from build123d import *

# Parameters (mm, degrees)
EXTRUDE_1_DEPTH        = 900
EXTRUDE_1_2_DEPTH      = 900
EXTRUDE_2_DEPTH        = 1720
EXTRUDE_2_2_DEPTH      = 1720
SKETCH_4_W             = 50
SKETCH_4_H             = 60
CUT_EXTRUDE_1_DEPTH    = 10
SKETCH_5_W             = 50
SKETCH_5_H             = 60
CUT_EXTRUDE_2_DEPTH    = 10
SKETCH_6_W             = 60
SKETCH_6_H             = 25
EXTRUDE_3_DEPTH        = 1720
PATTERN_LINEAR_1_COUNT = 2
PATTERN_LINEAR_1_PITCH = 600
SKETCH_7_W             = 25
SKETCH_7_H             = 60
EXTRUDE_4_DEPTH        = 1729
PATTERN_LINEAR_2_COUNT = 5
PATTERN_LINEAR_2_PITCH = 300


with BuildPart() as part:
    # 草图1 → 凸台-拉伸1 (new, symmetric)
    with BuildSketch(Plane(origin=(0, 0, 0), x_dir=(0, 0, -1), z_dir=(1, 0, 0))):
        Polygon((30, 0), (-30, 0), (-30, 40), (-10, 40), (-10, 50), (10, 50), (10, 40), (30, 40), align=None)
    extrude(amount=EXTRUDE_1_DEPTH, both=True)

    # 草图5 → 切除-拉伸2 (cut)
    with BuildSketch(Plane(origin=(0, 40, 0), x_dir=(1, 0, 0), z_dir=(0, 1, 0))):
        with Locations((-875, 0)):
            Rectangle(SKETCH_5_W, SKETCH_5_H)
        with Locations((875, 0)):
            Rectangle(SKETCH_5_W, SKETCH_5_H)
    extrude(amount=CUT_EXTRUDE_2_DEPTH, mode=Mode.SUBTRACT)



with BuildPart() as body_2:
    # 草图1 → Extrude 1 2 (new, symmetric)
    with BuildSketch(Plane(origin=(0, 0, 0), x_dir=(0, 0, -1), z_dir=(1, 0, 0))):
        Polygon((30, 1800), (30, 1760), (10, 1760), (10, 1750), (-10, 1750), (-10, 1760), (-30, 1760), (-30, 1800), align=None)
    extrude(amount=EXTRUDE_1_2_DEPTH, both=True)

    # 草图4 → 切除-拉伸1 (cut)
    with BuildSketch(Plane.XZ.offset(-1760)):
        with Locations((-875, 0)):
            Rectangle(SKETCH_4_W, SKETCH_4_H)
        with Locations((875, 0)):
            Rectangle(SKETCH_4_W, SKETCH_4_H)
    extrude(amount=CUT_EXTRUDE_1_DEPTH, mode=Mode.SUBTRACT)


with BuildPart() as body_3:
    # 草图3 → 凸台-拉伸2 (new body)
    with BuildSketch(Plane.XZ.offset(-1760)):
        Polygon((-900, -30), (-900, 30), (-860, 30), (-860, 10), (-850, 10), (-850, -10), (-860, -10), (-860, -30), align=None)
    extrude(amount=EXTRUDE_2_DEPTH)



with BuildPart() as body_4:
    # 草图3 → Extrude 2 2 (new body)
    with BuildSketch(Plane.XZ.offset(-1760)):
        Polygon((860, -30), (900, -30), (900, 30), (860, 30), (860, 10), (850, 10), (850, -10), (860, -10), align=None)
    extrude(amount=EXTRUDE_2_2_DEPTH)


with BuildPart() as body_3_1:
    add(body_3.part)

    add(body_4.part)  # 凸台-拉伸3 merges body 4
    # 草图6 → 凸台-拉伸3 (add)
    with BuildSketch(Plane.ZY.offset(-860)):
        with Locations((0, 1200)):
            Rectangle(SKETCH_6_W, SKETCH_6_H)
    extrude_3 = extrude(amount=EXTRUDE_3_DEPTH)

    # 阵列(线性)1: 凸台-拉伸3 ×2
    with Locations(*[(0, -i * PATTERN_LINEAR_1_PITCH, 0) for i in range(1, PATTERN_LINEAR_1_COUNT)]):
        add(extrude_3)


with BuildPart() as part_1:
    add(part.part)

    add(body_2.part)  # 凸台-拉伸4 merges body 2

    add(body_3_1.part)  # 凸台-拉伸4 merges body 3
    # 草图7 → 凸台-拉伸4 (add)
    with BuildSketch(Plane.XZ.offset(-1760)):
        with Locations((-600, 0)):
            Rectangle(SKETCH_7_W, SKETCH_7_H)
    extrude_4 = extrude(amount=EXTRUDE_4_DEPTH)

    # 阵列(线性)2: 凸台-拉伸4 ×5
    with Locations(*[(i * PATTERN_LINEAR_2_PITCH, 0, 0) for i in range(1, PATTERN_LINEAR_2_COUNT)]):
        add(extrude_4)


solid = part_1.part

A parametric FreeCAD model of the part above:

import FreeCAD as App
import Part
import Sketcher


def add_polygon(sketch, points):
    """Adds a closed chain of lines whose ends are joined by coincident constraints."""
    first, n = sketch.GeometryCount, len(points)
    for a, b in zip(points, points[1:] + points[:1]):
        sketch.addGeometry(Part.LineSegment(App.Vector(*a, 0), App.Vector(*b, 0)), False)
    for i in range(n):
        sketch.addConstraint(Sketcher.Constraint("Coincident", first + i, 2, first + (i + 1) % n, 1))

doc = App.newDocument("Part")
params = doc.addObject("Spreadsheet::Sheet", "Params")
for row, (alias, value) in enumerate([
    ("sketch1_width", "40 mm"),
    ("sketch1_width2", "10 mm"),
    ("sketch1_height", "60 mm"),
    ("pad1_length", "1800 mm"),
    ("sketch2_width", "50 mm"),
    ("sketch2_height", "60 mm"),
    ("pocket1_length", "10 mm"),
    ("sketch3_width", "40 mm"),
    ("sketch3_width2", "10 mm"),
    ("sketch3_height", "60 mm"),
    ("pad2_length", "1800 mm"),
    ("sketch4_width", "50 mm"),
    ("sketch4_height", "60 mm"),
    ("pocket2_length", "10 mm"),
    ("sketch5_width", "40 mm"),
    ("sketch5_width2", "10 mm"),
    ("sketch5_height", "60 mm"),
    ("pad3_length", "1720 mm"),
    ("sketch6_width", "40 mm"),
    ("sketch6_width2", "10 mm"),
    ("sketch6_height", "60 mm"),
    ("pad4_length", "1720 mm"),
    ("sketch7_width", "25 mm"),
    ("sketch7_height", "60 mm"),
    ("pad5_length", "1720 mm"),
    ("linearpattern_pitch", "600 mm"),
    ("sketch8_width", "25 mm"),
    ("sketch8_height", "60 mm"),
    ("pad6_length", "1729 mm"),
    ("linearpattern2_pitch", "300 mm"),
], start=1):
    params.set(f"A{row}", alias)
    params.set(f"B{row}", "=" + value)
    params.setAlias(f"B{row}", alias)

body = doc.addObject("PartDesign::Body", "Body")

sketch1 = body.newObject("Sketcher::SketchObject", "Sketch")
sketch1.AttachmentSupport = (doc.getObject("YZ_Plane"), [""])
sketch1.MapMode = "FlatFace"
add_polygon(sketch1, [(0, 30), (0, -30), (40, -30), (40, -10), (50, -10), (50, 10), (40, 10), (40, 30)])
sketch1.addConstraint([
    Sketcher.Constraint("Vertical", 0),
    Sketcher.Constraint("Horizontal", 1),
    Sketcher.Constraint("Vertical", 2),
    Sketcher.Constraint("Horizontal", 3),
    Sketcher.Constraint("Vertical", 4),
    Sketcher.Constraint("Horizontal", 5),
    Sketcher.Constraint("Vertical", 6),
    Sketcher.Constraint("Horizontal", 7),
    Sketcher.Constraint("Symmetric", 0, 2, 7, 2, -1, 1),
    Sketcher.Constraint("Symmetric", 2, 2, 5, 2, -1),
    Sketcher.Constraint("Equal", 2, 4),
    Sketcher.Constraint("DistanceX", 1, 1, 1, 2, 40.0),
    Sketcher.Constraint("DistanceX", 3, 1, 3, 2, 10.0),
    Sketcher.Constraint("DistanceY", 0, 2, 0, 1, 60.0),
])
sketch1.setExpression("Constraints[19]", "Params.sketch1_width")
sketch1.setExpression("Constraints[20]", "Params.sketch1_width2")
sketch1.setExpression("Constraints[21]", "Params.sketch1_height")
pad1 = body.newObject("PartDesign::Pad", "Pad")
pad1.Profile = sketch1
pad1.setExpression("Length", "Params.pad1_length")
pad1.Midplane = True

sketch2 = body.newObject("Sketcher::SketchObject", "Sketch001")
sketch2.AttachmentSupport = (doc.getObject("XZ_Plane"), [""])
sketch2.MapMode = "FlatFace"
sketch2.AttachmentOffset = App.Placement(App.Vector(0, 0, -40), App.Rotation())
add_polygon(sketch2, [(-900, -30), (-900, 30), (-850, 30), (-850, -30)])
add_polygon(sketch2, [(850, -30), (850, 30), (900, 30), (900, -30)])
sketch2.addConstraint([
    Sketcher.Constraint("Vertical", 0),
    Sketcher.Constraint("Horizontal", 1),
    Sketcher.Constraint("Vertical", 2),
    Sketcher.Constraint("Horizontal", 3),
    Sketcher.Constraint("Vertical", 4),
    Sketcher.Constraint("Horizontal", 5),
    Sketcher.Constraint("Vertical", 6),
    Sketcher.Constraint("Horizontal", 7),
    Sketcher.Constraint("Symmetric", 2, 2, 4, 2, -1, 1),
    Sketcher.Constraint("Symmetric", 0, 2, 6, 2, -1, 1),
    Sketcher.Constraint("Horizontal", 1, 2, 4, 2),
    Sketcher.Constraint("DistanceX", 1, 1, 1, 2, 50.0),
    Sketcher.Constraint("DistanceY", 0, 1, 0, 2, 60.0),
    Sketcher.Constraint("DistanceX", 0, 2, -1, 1, 900.0),
])
sketch2.setExpression("Constraints[19]", "Params.sketch2_width")
sketch2.setExpression("Constraints[20]", "Params.sketch2_height")
pocket1 = body.newObject("PartDesign::Pocket", "Pocket")
pocket1.Profile = sketch2
pocket1.setExpression("Length", "Params.pocket1_length")
body2 = doc.addObject("PartDesign::Body", "Body001")

sketch3 = body2.newObject("Sketcher::SketchObject", "Sketch002")
sketch3.AttachmentSupport = (doc.getObject("YZ_Plane001"), [""])
sketch3.MapMode = "FlatFace"
add_polygon(sketch3, [(1760, -30), (1800, -30), (1800, 30), (1760, 30), (1760, 10), (1750, 10), (1750, -10), (1760, -10)])
sketch3.addConstraint([
    Sketcher.Constraint("Horizontal", 0),
    Sketcher.Constraint("Vertical", 1),
    Sketcher.Constraint("Horizontal", 2),
    Sketcher.Constraint("Vertical", 3),
    Sketcher.Constraint("Horizontal", 4),
    Sketcher.Constraint("Vertical", 5),
    Sketcher.Constraint("Horizontal", 6),
    Sketcher.Constraint("Vertical", 7),
    Sketcher.Constraint("Symmetric", 3, 2, 6, 2, -1),
    Sketcher.Constraint("Equal", 3, 5),
    Sketcher.Constraint("Equal", 5, 7),
    Sketcher.Constraint("DistanceX", 0, 1, 0, 2, 40.0),
    Sketcher.Constraint("DistanceX", 4, 2, 4, 1, 10.0),
    Sketcher.Constraint("DistanceY", 1, 1, 1, 2, 60.0),
    Sketcher.Constraint("DistanceX", -1, 1, 0, 2, 1800.0),
])
sketch3.setExpression("Constraints[19]", "Params.sketch3_width")
sketch3.setExpression("Constraints[20]", "Params.sketch3_width2")
sketch3.setExpression("Constraints[21]", "Params.sketch3_height")
pad2 = body2.newObject("PartDesign::Pad", "Pad001")
pad2.Profile = sketch3
pad2.setExpression("Length", "Params.pad2_length")
pad2.Midplane = True

sketch4 = body2.newObject("Sketcher::SketchObject", "Sketch003")
sketch4.AttachmentSupport = (doc.getObject("XZ_Plane001"), [""])
sketch4.MapMode = "FlatFace"
sketch4.AttachmentOffset = App.Placement(App.Vector(0, 0, -1760), App.Rotation())
add_polygon(sketch4, [(-900, 30), (-900, -30), (-850, -30), (-850, 30)])
add_polygon(sketch4, [(850, 30), (850, -30), (900, -30), (900, 30)])
sketch4.addConstraint([
    Sketcher.Constraint("Vertical", 0),
    Sketcher.Constraint("Horizontal", 1),
    Sketcher.Constraint("Vertical", 2),
    Sketcher.Constraint("Horizontal", 3),
    Sketcher.Constraint("Vertical", 4),
    Sketcher.Constraint("Horizontal", 5),
    Sketcher.Constraint("Vertical", 6),
    Sketcher.Constraint("Horizontal", 7),
    Sketcher.Constraint("Symmetric", 2, 2, 4, 2, -1, 1),
    Sketcher.Constraint("Symmetric", 0, 2, 6, 2, -1, 1),
    Sketcher.Constraint("Horizontal", 1, 2, 4, 2),
    Sketcher.Constraint("DistanceX", 1, 1, 1, 2, 50.0),
    Sketcher.Constraint("DistanceY", 0, 2, 0, 1, 60.0),
    Sketcher.Constraint("DistanceX", 0, 2, -1, 1, 900.0),
])
sketch4.setExpression("Constraints[19]", "Params.sketch4_width")
sketch4.setExpression("Constraints[20]", "Params.sketch4_height")
pocket2 = body2.newObject("PartDesign::Pocket", "Pocket001")
pocket2.Profile = sketch4
pocket2.setExpression("Length", "Params.pocket2_length")
pocket2.Reversed = True
body3 = doc.addObject("PartDesign::Body", "Body002")

sketch5 = body3.newObject("Sketcher::SketchObject", "Sketch004")
sketch5.AttachmentSupport = (doc.getObject("XZ_Plane002"), [""])
sketch5.MapMode = "FlatFace"
sketch5.AttachmentOffset = App.Placement(App.Vector(0, 0, -1760), App.Rotation())
add_polygon(sketch5, [(-900, 30), (-900, -30), (-860, -30), (-860, -10), (-850, -10), (-850, 10), (-860, 10), (-860, 30)])
sketch5.addConstraint([
    Sketcher.Constraint("Vertical", 0),
    Sketcher.Constraint("Horizontal", 1),
    Sketcher.Constraint("Vertical", 2),
    Sketcher.Constraint("Horizontal", 3),
    Sketcher.Constraint("Vertical", 4),
    Sketcher.Constraint("Horizontal", 5),
    Sketcher.Constraint("Vertical", 6),
    Sketcher.Constraint("Horizontal", 7),
    Sketcher.Constraint("Symmetric", 2, 2, 5, 2, -1),
    Sketcher.Constraint("Equal", 2, 4),
    Sketcher.Constraint("Equal", 4, 6),
    Sketcher.Constraint("DistanceX", 1, 1, 1, 2, 40.0),
    Sketcher.Constraint("DistanceX", 3, 1, 3, 2, 10.0),
    Sketcher.Constraint("DistanceY", 0, 2, 0, 1, 60.0),
    Sketcher.Constraint("DistanceX", 0, 2, -1, 1, 900.0),
])
sketch5.setExpression("Constraints[19]", "Params.sketch5_width")
sketch5.setExpression("Constraints[20]", "Params.sketch5_width2")
sketch5.setExpression("Constraints[21]", "Params.sketch5_height")
pad3 = body3.newObject("PartDesign::Pad", "Pad002")
pad3.Profile = sketch5
pad3.setExpression("Length", "Params.pad3_length")
body4 = doc.addObject("PartDesign::Body", "Body003")

sketch6 = body4.newObject("Sketcher::SketchObject", "Sketch005")
sketch6.AttachmentSupport = (doc.getObject("XZ_Plane003"), [""])
sketch6.MapMode = "FlatFace"
sketch6.AttachmentOffset = App.Placement(App.Vector(0, 0, -1760), App.Rotation())
add_polygon(sketch6, [(860, -30), (900, -30), (900, 30), (860, 30), (860, 10), (850, 10), (850, -10), (860, -10)])
sketch6.addConstraint([
    Sketcher.Constraint("Horizontal", 0),
    Sketcher.Constraint("Vertical", 1),
    Sketcher.Constraint("Horizontal", 2),
    Sketcher.Constraint("Vertical", 3),
    Sketcher.Constraint("Horizontal", 4),
    Sketcher.Constraint("Vertical", 5),
    Sketcher.Constraint("Horizontal", 6),
    Sketcher.Constraint("Vertical", 7),
    Sketcher.Constraint("Symmetric", 3, 2, 6, 2, -1),
    Sketcher.Constraint("Equal", 3, 5),
    Sketcher.Constraint("Equal", 5, 7),
    Sketcher.Constraint("DistanceX", 0, 1, 0, 2, 40.0),
    Sketcher.Constraint("DistanceX", 4, 2, 4, 1, 10.0),
    Sketcher.Constraint("DistanceY", 1, 1, 1, 2, 60.0),
    Sketcher.Constraint("DistanceX", -1, 1, 0, 2, 900.0),
])
sketch6.setExpression("Constraints[19]", "Params.sketch6_width")
sketch6.setExpression("Constraints[20]", "Params.sketch6_width2")
sketch6.setExpression("Constraints[21]", "Params.sketch6_height")
pad4 = body4.newObject("PartDesign::Pad", "Pad003")
pad4.Profile = sketch6
pad4.setExpression("Length", "Params.pad4_length")
body3.AllowCompound = True
doc.recompute()

boolean = body3.newObject("PartDesign::Boolean", "Boolean")
boolean.Type = "Fuse"
boolean.addObjects([body4])

sketch7 = body3.newObject("Sketcher::SketchObject", "Sketch006")
sketch7.AttachmentSupport = (doc.getObject("YZ_Plane002"), [""])
sketch7.MapMode = "FlatFace"
sketch7.AttachmentOffset = App.Placement(App.Vector(0, 0, 860), App.Rotation())
add_polygon(sketch7, [(1212.5, -30), (1187.5, -30), (1187.5, 30), (1212.5, 30)])
sketch7.addConstraint([
    Sketcher.Constraint("Horizontal", 0),
    Sketcher.Constraint("Vertical", 1),
    Sketcher.Constraint("Horizontal", 2),
    Sketcher.Constraint("Vertical", 3),
    Sketcher.Constraint("DistanceX", 0, 2, 0, 1, 25.0),
    Sketcher.Constraint("DistanceY", 1, 1, 1, 2, 60.0),
    Sketcher.Constraint("DistanceY", 0, 2, -1, 1, 30.0),
    Sketcher.Constraint("DistanceX", -1, 1, 0, 2, 1187.5),
])
sketch7.setExpression("Constraints[8]", "Params.sketch7_width")
sketch7.setExpression("Constraints[9]", "Params.sketch7_height")
pad5 = body3.newObject("PartDesign::Pad", "Pad004")
pad5.Profile = sketch7
pad5.setExpression("Length", "Params.pad5_length")
pad5.Reversed = True
doc.recompute()

linearpattern = body3.newObject("PartDesign::LinearPattern", "LinearPattern")
linearpattern.Originals = [pad5]
linearpattern.Direction = (doc.getObject("Y_Axis002"), [""])
linearpattern.Mode = "offset"
linearpattern.setExpression("Offset", "Params.linearpattern_pitch")
linearpattern.Occurrences = 2
linearpattern.Reversed = True
body3.Tip = linearpattern
body.AllowCompound = True
doc.recompute()

boolean2 = body.newObject("PartDesign::Boolean", "Boolean001")
boolean2.Type = "Fuse"
boolean2.addObjects([body2])
doc.recompute()

boolean3 = body.newObject("PartDesign::Boolean", "Boolean002")
boolean3.Type = "Fuse"
boolean3.addObjects([body3])

sketch8 = body.newObject("Sketcher::SketchObject", "Sketch007")
sketch8.AttachmentSupport = (doc.getObject("XZ_Plane"), [""])
sketch8.MapMode = "FlatFace"
sketch8.AttachmentOffset = App.Placement(App.Vector(0, 0, -1760), App.Rotation())
add_polygon(sketch8, [(-612.5, 30), (-612.5, -30), (-587.5, -30), (-587.5, 30)])
sketch8.addConstraint([
    Sketcher.Constraint("Vertical", 0),
    Sketcher.Constraint("Horizontal", 1),
    Sketcher.Constraint("Vertical", 2),
    Sketcher.Constraint("Horizontal", 3),
    Sketcher.Constraint("DistanceX", 1, 1, 1, 2, 25.0),
    Sketcher.Constraint("DistanceY", 0, 2, 0, 1, 60.0),
    Sketcher.Constraint("DistanceY", 0, 2, -1, 1, 30.0),
    Sketcher.Constraint("DistanceX", 0, 2, -1, 1, 612.5),
])
sketch8.setExpression("Constraints[8]", "Params.sketch8_width")
sketch8.setExpression("Constraints[9]", "Params.sketch8_height")
pad6 = body.newObject("PartDesign::Pad", "Pad005")
pad6.Profile = sketch8
pad6.setExpression("Length", "Params.pad6_length")
doc.recompute()

linearpattern2 = body.newObject("PartDesign::LinearPattern", "LinearPattern001")
linearpattern2.Originals = [pad6]
linearpattern2.Direction = (doc.getObject("X_Axis"), [""])
linearpattern2.Mode = "offset"
linearpattern2.setExpression("Offset", "Params.linearpattern2_pitch")
linearpattern2.Occurrences = 5
body.Tip = linearpattern2

doc.recompute()
